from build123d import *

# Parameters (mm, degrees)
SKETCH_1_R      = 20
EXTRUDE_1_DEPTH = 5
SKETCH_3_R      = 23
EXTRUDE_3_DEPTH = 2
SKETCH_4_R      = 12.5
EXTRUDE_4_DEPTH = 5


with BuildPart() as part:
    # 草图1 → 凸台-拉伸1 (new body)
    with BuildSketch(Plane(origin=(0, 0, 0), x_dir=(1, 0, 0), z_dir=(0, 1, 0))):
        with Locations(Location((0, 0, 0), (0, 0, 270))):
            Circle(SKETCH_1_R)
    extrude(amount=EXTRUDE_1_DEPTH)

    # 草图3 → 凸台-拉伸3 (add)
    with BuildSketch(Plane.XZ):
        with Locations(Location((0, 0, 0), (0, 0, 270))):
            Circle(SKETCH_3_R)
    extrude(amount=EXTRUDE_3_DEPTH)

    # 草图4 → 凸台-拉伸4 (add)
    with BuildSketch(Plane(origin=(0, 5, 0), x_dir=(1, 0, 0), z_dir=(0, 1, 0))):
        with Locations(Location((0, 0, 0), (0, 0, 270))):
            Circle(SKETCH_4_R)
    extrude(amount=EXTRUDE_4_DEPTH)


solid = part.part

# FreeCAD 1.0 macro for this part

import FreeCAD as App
import Part
import Sketcher
Q = App.Units.Quantity

doc = App.newDocument("Part")
body = doc.addObject("PartDesign::Body", "Body")

# Sketch on XZ plane
sketch1 = body.newObject("Sketcher::SketchObject", "Sketch")
sketch1.AttachmentSupport = (doc.getObject("XZ_Plane"), [""])
sketch1.MapMode = "FlatFace"
sketch1.addGeometry(Part.Circle(App.Vector(0, 0, 0), App.Vector(0, 0, 1), 20), False)
sketch1.addConstraint(Sketcher.Constraint("Coincident", 0, 3, -1, 1))
sketch1.addConstraint(Sketcher.Constraint("Diameter", 0, Q("40 mm")))
pad1 = body.newObject("PartDesign::Pad", "Pad")
pad1.Profile = sketch1
pad1.Length = 5
pad1.Reversed = True

# Sketch on XZ plane
sketch2 = body.newObject("Sketcher::SketchObject", "Sketch001")
sketch2.AttachmentSupport = (doc.getObject("XZ_Plane"), [""])
sketch2.MapMode = "FlatFace"
sketch2.addGeometry(Part.Circle(App.Vector(0, 0, 0), App.Vector(0, 0, 1), 23), False)
sketch2.addConstraint(Sketcher.Constraint("Coincident", 0, 3, -1, 1))
sketch2.addConstraint(Sketcher.Constraint("Diameter", 0, Q("46 mm")))
pad2 = body.newObject("PartDesign::Pad", "Pad001")
pad2.Profile = sketch2
pad2.Length = 2

# Sketch on XZ plane
sketch3 = body.newObject("Sketcher::SketchObject", "Sketch002")
sketch3.AttachmentSupport = (doc.getObject("XZ_Plane"), [""])
sketch3.MapMode = "FlatFace"
sketch3.AttachmentOffset = App.Placement(App.Vector(0, 0, -5), App.Rotation())
sketch3.addGeometry(Part.Circle(App.Vector(0, 0, 0), App.Vector(0, 0, 1), 12), False)
sketch3.addConstraint(Sketcher.Constraint("Coincident", 0, 3, -1, 1))
sketch3.addConstraint(Sketcher.Constraint("Diameter", 0, Q("25 mm")))
pad3 = body.newObject("PartDesign::Pad", "Pad002")
pad3.Profile = sketch3
pad3.Length = 5
pad3.Reversed = True

doc.recompute()
